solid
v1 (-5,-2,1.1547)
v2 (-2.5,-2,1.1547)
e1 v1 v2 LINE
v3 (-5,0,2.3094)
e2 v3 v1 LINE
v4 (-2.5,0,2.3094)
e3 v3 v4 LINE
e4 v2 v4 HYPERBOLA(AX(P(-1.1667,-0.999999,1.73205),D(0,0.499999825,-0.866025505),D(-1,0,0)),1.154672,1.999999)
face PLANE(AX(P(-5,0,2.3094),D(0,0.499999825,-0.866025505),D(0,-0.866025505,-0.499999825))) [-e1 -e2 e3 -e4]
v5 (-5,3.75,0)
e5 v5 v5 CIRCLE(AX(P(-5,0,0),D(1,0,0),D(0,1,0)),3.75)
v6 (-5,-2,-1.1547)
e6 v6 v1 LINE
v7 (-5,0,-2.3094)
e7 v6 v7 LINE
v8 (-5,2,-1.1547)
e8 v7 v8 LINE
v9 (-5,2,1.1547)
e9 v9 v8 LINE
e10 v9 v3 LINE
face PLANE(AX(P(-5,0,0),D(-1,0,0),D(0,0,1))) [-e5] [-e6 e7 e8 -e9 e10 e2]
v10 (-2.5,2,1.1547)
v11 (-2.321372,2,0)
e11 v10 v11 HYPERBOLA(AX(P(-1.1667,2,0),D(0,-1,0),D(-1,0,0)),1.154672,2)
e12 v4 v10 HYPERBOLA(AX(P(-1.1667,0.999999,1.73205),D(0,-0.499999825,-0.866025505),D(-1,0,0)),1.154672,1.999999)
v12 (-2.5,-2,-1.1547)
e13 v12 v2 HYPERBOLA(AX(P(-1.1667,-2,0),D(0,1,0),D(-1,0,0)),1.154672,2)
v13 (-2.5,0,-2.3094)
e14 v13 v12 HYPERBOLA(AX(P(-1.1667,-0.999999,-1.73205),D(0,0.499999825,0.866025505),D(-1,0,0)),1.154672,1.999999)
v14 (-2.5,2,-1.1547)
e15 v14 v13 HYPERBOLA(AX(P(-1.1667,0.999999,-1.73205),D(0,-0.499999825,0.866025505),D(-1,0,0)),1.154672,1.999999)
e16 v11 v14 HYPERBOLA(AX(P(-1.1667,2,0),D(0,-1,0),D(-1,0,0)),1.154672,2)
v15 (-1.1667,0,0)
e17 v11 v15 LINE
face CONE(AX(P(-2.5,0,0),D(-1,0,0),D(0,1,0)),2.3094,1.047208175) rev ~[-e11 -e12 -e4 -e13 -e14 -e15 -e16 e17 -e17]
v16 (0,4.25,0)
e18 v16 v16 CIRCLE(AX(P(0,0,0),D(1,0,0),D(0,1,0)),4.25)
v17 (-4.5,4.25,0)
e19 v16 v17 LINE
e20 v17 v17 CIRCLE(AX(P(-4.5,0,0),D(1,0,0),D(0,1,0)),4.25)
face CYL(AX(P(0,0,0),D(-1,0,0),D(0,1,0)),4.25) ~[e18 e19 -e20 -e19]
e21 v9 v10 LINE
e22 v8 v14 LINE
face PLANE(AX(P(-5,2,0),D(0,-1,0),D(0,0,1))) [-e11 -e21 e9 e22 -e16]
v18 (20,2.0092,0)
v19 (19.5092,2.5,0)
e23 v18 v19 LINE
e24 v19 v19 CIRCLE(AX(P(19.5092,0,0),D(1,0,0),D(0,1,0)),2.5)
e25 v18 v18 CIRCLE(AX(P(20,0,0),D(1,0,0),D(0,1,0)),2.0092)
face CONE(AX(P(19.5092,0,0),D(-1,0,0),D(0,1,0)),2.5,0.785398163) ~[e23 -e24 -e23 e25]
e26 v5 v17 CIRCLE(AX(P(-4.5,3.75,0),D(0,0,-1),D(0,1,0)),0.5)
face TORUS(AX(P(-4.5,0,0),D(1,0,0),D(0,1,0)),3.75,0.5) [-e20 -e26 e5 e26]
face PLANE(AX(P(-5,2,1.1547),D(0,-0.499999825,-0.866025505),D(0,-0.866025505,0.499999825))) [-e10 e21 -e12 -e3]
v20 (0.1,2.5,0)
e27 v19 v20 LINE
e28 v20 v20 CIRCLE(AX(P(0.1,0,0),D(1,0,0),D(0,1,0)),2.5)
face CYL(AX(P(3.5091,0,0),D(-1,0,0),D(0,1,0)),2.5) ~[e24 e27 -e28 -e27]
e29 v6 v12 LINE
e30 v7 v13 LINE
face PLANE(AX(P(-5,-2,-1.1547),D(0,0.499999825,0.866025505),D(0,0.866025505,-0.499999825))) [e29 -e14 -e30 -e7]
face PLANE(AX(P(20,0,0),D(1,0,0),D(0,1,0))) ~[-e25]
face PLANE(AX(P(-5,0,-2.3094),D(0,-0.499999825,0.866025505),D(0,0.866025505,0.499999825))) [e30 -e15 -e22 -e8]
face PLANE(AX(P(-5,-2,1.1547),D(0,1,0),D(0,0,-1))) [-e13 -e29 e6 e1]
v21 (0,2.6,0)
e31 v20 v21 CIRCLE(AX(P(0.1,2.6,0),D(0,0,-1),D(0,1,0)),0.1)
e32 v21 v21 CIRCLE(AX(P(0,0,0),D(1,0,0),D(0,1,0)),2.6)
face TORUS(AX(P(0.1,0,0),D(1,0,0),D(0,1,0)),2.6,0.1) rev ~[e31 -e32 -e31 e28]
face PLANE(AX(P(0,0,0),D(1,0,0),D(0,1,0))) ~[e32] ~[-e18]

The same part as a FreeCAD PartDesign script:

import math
import FreeCAD as App
import Part
import Sketcher
Q = App.Units.Quantity


def edges_at(feature, points):
    """Names of the edges that pass closest to the given points."""
    edges = feature.Shape.Edges
    near = lambda p: min(range(len(edges)), key=lambda i: edges[i].distToShape(Part.Vertex(*p))[0])
    return sorted({f"Edge{near(p) + 1}" for p in points})


def add_polygon(sketch, points):
    """Adds a closed chain of lines whose ends are joined by coincident constraints."""
    first, n = sketch.GeometryCount, len(points)
    for a, b in zip(points, points[1:] + points[:1]):
        sketch.addGeometry(Part.LineSegment(App.Vector(*a, 0), App.Vector(*b, 0)), False)
    for i in range(n):
        sketch.addConstraint(Sketcher.Constraint("Coincident", first + i, 2, first + (i + 1) % n, 1))

doc = App.newDocument("Part")
body = doc.addObject("PartDesign::Body", "Body")

# Sketch on XY plane
sketch1 = body.newObject("Sketcher::SketchObject", "Sketch")
sketch1.AttachmentSupport = (doc.getObject("XY_Plane"), [""])
sketch1.MapMode = "FlatFace"
add_polygon(sketch1, [(-2.5, 2.3), (-1.2, 0), (20, 0), (20, 2.5), (0, 2.5), (0, 4.2), (-5, 4.2), (-5, 2.3)])  # lines 0-7
sketch1.addConstraint(Sketcher.Constraint("Horizontal", 1))
sketch1.addConstraint(Sketcher.Constraint("Vertical", 2))
sketch1.addConstraint(Sketcher.Constraint("Horizontal", 3))
sketch1.addConstraint(Sketcher.Constraint("Vertical", 4))
sketch1.addConstraint(Sketcher.Constraint("Horizontal", 5))
sketch1.addConstraint(Sketcher.Constraint("Vertical", 6))
sketch1.addConstraint(Sketcher.Constraint("Horizontal", 7))
sketch1.addConstraint(Sketcher.Constraint("PointOnObject", 0, 2, -1))
sketch1.addConstraint(Sketcher.Constraint("PointOnObject", 3, 2, -2))
sketch1.addConstraint(Sketcher.Constraint("Equal", 7, 2))
sketch1.addConstraint(Sketcher.Constraint("DistanceX", 3, 2, 3, 1, 20.0))
sketch1.addConstraint(Sketcher.Constraint("DistanceX", 5, 2, 5, 1, 5.0))
sketch1.addConstraint(Sketcher.Constraint("DistanceX", 7, 1, 7, 2, 2.5))
sketch1.addConstraint(Sketcher.Constraint("Angle", 0, Q("-60.0006 deg")))
sketch1.addConstraint(Sketcher.Constraint("DistanceY", 4, 1, 4, 2, 1.75))
sketch1.addConstraint(Sketcher.Constraint("DistanceX", 1, 1, 1, 2, 21.1667))
revolution = body.newObject("PartDesign::Revolution", "Revolution")
revolution.Profile = sketch1
revolution.ReferenceAxis = (sketch1, ["H_Axis"])
revolution.Angle = 360

# Sketch on YZ plane
sketch2 = body.newObject("Sketcher::SketchObject", "Sketch001")
sketch2.AttachmentSupport = (doc.getObject("YZ_Plane"), [""])
sketch2.MapMode = "FlatFace"
sketch2.AttachmentOffset = App.Placement(App.Vector(0, 0, -5), App.Rotation())
sketch2.addGeometry(Part.LineSegment(App.Vector(2, 1.2, 0), App.Vector(0, 2.3, 0)), False)
sketch2.addGeometry(Part.ArcOfCircle(Part.Circle(App.Vector(0, 0, 0), App.Vector(0, 0, 1), 2.3), math.radians(30), math.radians(90)), False)
sketch2.addGeometry(Part.ArcOfCircle(Part.Circle(App.Vector(0, 0, 0), App.Vector(0, 0, 1), 2.3), math.radians(90), math.radians(150)), False)
sketch2.addGeometry(Part.LineSegment(App.Vector(0, 2.3, 0), App.Vector(-2, 1.2, 0)), False)
sketch2.addGeometry(Part.ArcOfCircle(Part.Circle(App.Vector(0, 0, 0), App.Vector(0, 0, 1), 2.3), math.radians(-30), math.radians(30)), False)
sketch2.addGeometry(Part.LineSegment(App.Vector(2, -1.2, 0), App.Vector(2, 1.2, 0)), False)
sketch2.addGeometry(Part.LineSegment(App.Vector(-2, 1.2, 0), App.Vector(-2, -1.2, 0)), False)
sketch2.addGeometry(Part.ArcOfCircle(Part.Circle(App.Vector(0, 0, 0), App.Vector(0, 0, 1), 2.3), math.radians(150), math.radians(210)), False)
sketch2.addGeometry(Part.LineSegment(App.Vector(-2, -1.2, 0), App.Vector(0, -2.3, 0)), False)
sketch2.addGeometry(Part.ArcOfCircle(Part.Circle(App.Vector(0, 0, 0), App.Vector(0, 0, 1), 2.3), math.radians(-150), math.radians(-90)), False)
sketch2.addGeometry(Part.ArcOfCircle(Part.Circle(App.Vector(0, 0, 0), App.Vector(0, 0, 1), 2.3), math.radians(-90), math.radians(-30)), False)
sketch2.addGeometry(Part.LineSegment(App.Vector(0, -2.3, 0), App.Vector(2, -1.2, 0)), False)
sketch2.addConstraint(Sketcher.Constraint("Coincident", 0, 1, 1, 1))
sketch2.addConstraint(Sketcher.Constraint("Coincident", 1, 2, 0, 2))
sketch2.addConstraint(Sketcher.Constraint("Coincident", 2, 1, 3, 1))
sketch2.addConstraint(Sketcher.Constraint("Coincident", 3, 2, 2, 2))
sketch2.addConstraint(Sketcher.Constraint("Coincident", 4, 1, 5, 1))
sketch2.addConstraint(Sketcher.Constraint("Coincident", 5, 2, 4, 2))
sketch2.addConstraint(Sketcher.Constraint("Coincident", 6, 1, 7, 1))
sketch2.addConstraint(Sketcher.Constraint("Coincident", 7, 2, 6, 2))
sketch2.addConstraint(Sketcher.Constraint("Coincident", 8, 1, 9, 1))
sketch2.addConstraint(Sketcher.Constraint("Coincident", 9, 2, 8, 2))
sketch2.addConstraint(Sketcher.Constraint("Coincident", 10, 1, 11, 1))
sketch2.addConstraint(Sketcher.Constraint("Coincident", 11, 2, 10, 2))
sketch2.addConstraint(Sketcher.Constraint("Vertical", 5))
sketch2.addConstraint(Sketcher.Constraint("Vertical", 6))
sketch2.addConstraint(Sketcher.Constraint("Coincident", 1, 3, -1, 1))
sketch2.addConstraint(Sketcher.Constraint("Coincident", 2, 3, -1, 1))
sketch2.addConstraint(Sketcher.Constraint("Coincident", 4, 3, -1, 1))
sketch2.addConstraint(Sketcher.Constraint("Coincident", 7, 3, -1, 1))
sketch2.addConstraint(Sketcher.Constraint("Coincident", 9, 3, -1, 1))
sketch2.addConstraint(Sketcher.Constraint("Coincident", 10, 3, -1, 1))
sketch2.addConstraint(Sketcher.Constraint("Coincident", 2, 1, 1, 2))
sketch2.addConstraint(Sketcher.Constraint("Coincident", 5, 2, 0, 1))
sketch2.addConstraint(Sketcher.Constraint("Coincident", 6, 1, 3, 2))
sketch2.addConstraint(Sketcher.Constraint("Coincident", 8, 1, 7, 2))
sketch2.addConstraint(Sketcher.Constraint("Coincident", 10, 1, 9, 2))
sketch2.addConstraint(Sketcher.Constraint("PointOnObject", 1, 2, -2))
sketch2.addConstraint(Sketcher.Constraint("PointOnObject", 9, 2, -2))
sketch2.addConstraint(Sketcher.Constraint("Parallel", 0, 8))
sketch2.addConstraint(Sketcher.Constraint("Parallel", 3, 11))
sketch2.addConstraint(Sketcher.Constraint("Angle", 0, Q("150 deg")))
sketch2.addConstraint(Sketcher.Constraint("DistanceX", -1, 1, 0, 1, 2.0))
pad1 = body.newObject("PartDesign::Pad", "Pad")
pad1.Profile = sketch2
pad1.Length = 2.6786
doc.recompute()

fillet = body.newObject("PartDesign::Fillet", "Fillet")
fillet.Base = (pad1, edges_at(pad1, [(-5, -4.25, 0)]))
fillet.Radius = 0.5
doc.recompute()

chamfer = body.newObject("PartDesign::Chamfer", "Chamfer")
chamfer.Base = (fillet, edges_at(fillet, [(20, -2.5, 0)]))
chamfer.ChamferType = "Two distances"
chamfer.Size = 0.4908
chamfer.Size2 = 0.4908
doc.recompute()

fillet2 = body.newObject("PartDesign::Fillet", "Fillet001")
fillet2.Base = (chamfer, edges_at(chamfer, [(0, -2.5, 0)]))
fillet2.Radius = 0.1

doc.recompute()
